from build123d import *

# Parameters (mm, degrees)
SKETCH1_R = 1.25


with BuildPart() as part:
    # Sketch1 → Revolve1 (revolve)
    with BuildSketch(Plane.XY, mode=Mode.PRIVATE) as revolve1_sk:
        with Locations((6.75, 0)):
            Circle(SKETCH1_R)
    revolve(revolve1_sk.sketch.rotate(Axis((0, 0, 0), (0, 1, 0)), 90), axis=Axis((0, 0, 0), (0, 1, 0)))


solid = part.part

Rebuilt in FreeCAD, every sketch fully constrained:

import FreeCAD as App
import Part
import Sketcher
from FreeCAD import Vector
Q = App.Units.Quantity

doc = App.newDocument("Part")
body = doc.addObject("PartDesign::Body", "Body")

# Sketch on XY plane
sketch1 = body.newObject("Sketcher::SketchObject", "Sketch")
sketch1.AttachmentSupport = (doc.getObject("XY_Plane"), [""])
sketch1.MapMode = "FlatFace"
sketch1.addGeometry(Part.Circle(Vector(6.8, 0, 0), Vector(0, 0, 1), 1.2), False)
sketch1.addConstraint(Sketcher.Constraint("PointOnObject", 0, 3, -1))
sketch1.addConstraint(Sketcher.Constraint("Diameter", 0, Q("2.5 mm")))
sketch1.addConstraint(Sketcher.Constraint("DistanceX", -1, 1, 0, 3, Q("6.75 mm")))
revolution = body.newObject("PartDesign::Revolution", "Revolution")
revolution.Profile = sketch1
revolution.ReferenceAxis = (sketch1, ["V_Axis"])
revolution.Angle = 360

doc.recompute()
